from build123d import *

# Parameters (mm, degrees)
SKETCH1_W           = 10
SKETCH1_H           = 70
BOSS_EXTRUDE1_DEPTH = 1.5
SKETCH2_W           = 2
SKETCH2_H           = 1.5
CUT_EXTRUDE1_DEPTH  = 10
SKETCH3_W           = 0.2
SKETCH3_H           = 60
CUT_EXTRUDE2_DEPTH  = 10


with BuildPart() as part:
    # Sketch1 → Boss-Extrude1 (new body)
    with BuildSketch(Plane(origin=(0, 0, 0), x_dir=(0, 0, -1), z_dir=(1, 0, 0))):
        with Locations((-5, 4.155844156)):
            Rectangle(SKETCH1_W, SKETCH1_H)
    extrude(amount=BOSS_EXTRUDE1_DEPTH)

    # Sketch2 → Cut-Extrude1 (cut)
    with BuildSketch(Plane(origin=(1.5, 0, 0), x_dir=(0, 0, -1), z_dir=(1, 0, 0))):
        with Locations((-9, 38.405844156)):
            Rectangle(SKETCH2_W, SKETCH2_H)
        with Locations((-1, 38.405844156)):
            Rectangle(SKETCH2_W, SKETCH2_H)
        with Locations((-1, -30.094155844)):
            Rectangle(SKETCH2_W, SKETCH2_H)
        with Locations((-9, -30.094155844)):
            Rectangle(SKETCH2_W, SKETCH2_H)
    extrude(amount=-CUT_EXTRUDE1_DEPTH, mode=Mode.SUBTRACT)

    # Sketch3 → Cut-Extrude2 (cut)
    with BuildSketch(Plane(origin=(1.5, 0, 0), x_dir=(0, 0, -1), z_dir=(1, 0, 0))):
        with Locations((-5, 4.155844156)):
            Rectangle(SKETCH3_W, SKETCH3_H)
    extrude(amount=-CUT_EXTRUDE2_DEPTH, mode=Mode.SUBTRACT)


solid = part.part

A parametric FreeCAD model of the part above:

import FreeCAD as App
import Part
import Sketcher
from FreeCAD import Vector
Q = App.Units.Quantity

doc = App.newDocument("Part")
body = doc.addObject("PartDesign::Body", "Body")

# Sketch on YZ plane
sketch1 = doc.addObject("Sketcher::SketchObject", "Sketch")
body.addObject(sketch1)
sketch1.AttachmentSupport = (doc.YZ_Plane, [""])
sketch1.MapMode = "FlatFace"
sketch1.addGeometry([
    Part.LineSegment(Vector(39, 10, 0), Vector(-31, 10, 0)),
    Part.LineSegment(Vector(-31, 10, 0), Vector(-31, 0, 0)),
    Part.LineSegment(Vector(-31, 0, 0), Vector(39, 0, 0)),
    Part.LineSegment(Vector(39, 0, 0), Vector(39, 10, 0)),
], False)
sketch1.addConstraint([
    Sketcher.Constraint("Coincident", 0, 2, 1, 1),
    Sketcher.Constraint("Coincident", 1, 2, 2, 1),
    Sketcher.Constraint("Coincident", 2, 2, 3, 1),
    Sketcher.Constraint("Coincident", 3, 2, 0, 1),
    Sketcher.Constraint("Horizontal", 0),
    Sketcher.Constraint("Vertical", 1),
    Sketcher.Constraint("Horizontal", 2),
    Sketcher.Constraint("Vertical", 3),
    Sketcher.Constraint("PointOnObject", 1, 2, -1),
    Sketcher.Constraint("DistanceX", 0, 2, 0, 1, Q("70 mm")),
    Sketcher.Constraint("DistanceY", 1, 2, 1, 1, Q("10 mm")),
    Sketcher.Constraint("DistanceX", 0, 2, -1, 1, Q("30.844156 mm")),
])
pad1 = doc.addObject("PartDesign::Pad", "Pad")
body.addObject(pad1)
pad1.Profile = sketch1
pad1.Length = 1.5

# Sketch on YZ plane
sketch2 = doc.addObject("Sketcher::SketchObject", "Sketch001")
body.addObject(sketch2)
sketch2.AttachmentSupport = (doc.YZ_Plane, [""])
sketch2.MapMode = "FlatFace"
sketch2.AttachmentOffset = App.Placement(Vector(0, 0, 1.5), App.Rotation())
sketch2.addGeometry([
    Part.LineSegment(Vector(39.2, 10, 0), Vector(37.7, 10, 0)),  # 0
    Part.LineSegment(Vector(37.7, 10, 0), Vector(37.7, 8, 0)),  # 1
    Part.LineSegment(Vector(37.7, 8, 0), Vector(39.2, 8, 0)),  # 2
    Part.LineSegment(Vector(39.2, 8, 0), Vector(39.2, 10, 0)),  # 3
    Part.LineSegment(Vector(39.2, 2, 0), Vector(37.7, 2, 0)),  # 4
    Part.LineSegment(Vector(37.7, 2, 0), Vector(37.7, 0, 0)),  # 5
    Part.LineSegment(Vector(37.7, 0, 0), Vector(39.2, 0, 0)),  # 6
    Part.LineSegment(Vector(39.2, 0, 0), Vector(39.2, 2, 0)),  # 7
    Part.LineSegment(Vector(-29.3, 2, 0), Vector(-30.8, 2, 0)),  # 8
    Part.LineSegment(Vector(-30.8, 2, 0), Vector(-30.8, 0, 0)),  # 9
    Part.LineSegment(Vector(-30.8, 0, 0), Vector(-29.3, 0, 0)),  # 10
    Part.LineSegment(Vector(-29.3, 0, 0), Vector(-29.3, 2, 0)),  # 11
    Part.LineSegment(Vector(-29.3, 10, 0), Vector(-30.8, 10, 0)),  # 12
    Part.LineSegment(Vector(-30.8, 10, 0), Vector(-30.8, 8, 0)),  # 13
    Part.LineSegment(Vector(-30.8, 8, 0), Vector(-29.3, 8, 0)),  # 14
    Part.LineSegment(Vector(-29.3, 8, 0), Vector(-29.3, 10, 0)),  # 15
], False)
sketch2.addConstraint([
    Sketcher.Constraint("Coincident", 0, 2, 1, 1),
    Sketcher.Constraint("Coincident", 1, 2, 2, 1),
    Sketcher.Constraint("Coincident", 2, 2, 3, 1),
    Sketcher.Constraint("Coincident", 3, 2, 0, 1),
    Sketcher.Constraint("Coincident", 4, 2, 5, 1),
    Sketcher.Constraint("Coincident", 5, 2, 6, 1),
    Sketcher.Constraint("Coincident", 6, 2, 7, 1),
    Sketcher.Constraint("Coincident", 7, 2, 4, 1),
    Sketcher.Constraint("Coincident", 8, 2, 9, 1),
    Sketcher.Constraint("Coincident", 9, 2, 10, 1),
    Sketcher.Constraint("Coincident", 10, 2, 11, 1),
    Sketcher.Constraint("Coincident", 11, 2, 8, 1),
    Sketcher.Constraint("Coincident", 12, 2, 13, 1),
    Sketcher.Constraint("Coincident", 13, 2, 14, 1),
    Sketcher.Constraint("Coincident", 14, 2, 15, 1),
    Sketcher.Constraint("Coincident", 15, 2, 12, 1),
    Sketcher.Constraint("Horizontal", 0),
    Sketcher.Constraint("Vertical", 1),
    Sketcher.Constraint("Horizontal", 2),
    Sketcher.Constraint("Vertical", 3),
    Sketcher.Constraint("Horizontal", 4),
    Sketcher.Constraint("Vertical", 5),
    Sketcher.Constraint("Horizontal", 6),
    Sketcher.Constraint("Vertical", 7),
    Sketcher.Constraint("Horizontal", 8),
    Sketcher.Constraint("Vertical", 9),
    Sketcher.Constraint("Horizontal", 10),
    Sketcher.Constraint("Vertical", 11),
    Sketcher.Constraint("Horizontal", 12),
    Sketcher.Constraint("Vertical", 13),
    Sketcher.Constraint("Horizontal", 14),
    Sketcher.Constraint("Vertical", 15),
    Sketcher.Constraint("PointOnObject", 5, 2, -1),
    Sketcher.Constraint("PointOnObject", 9, 2, -1),
    Sketcher.Constraint("Horizontal", 7, 2, 8, 2),
    Sketcher.Constraint("Horizontal", 3, 2, 12, 2),
    Sketcher.Constraint("Horizontal", 2, 2, 13, 2),
    Sketcher.Constraint("Vertical", 1, 2, 4, 2),
    Sketcher.Constraint("Vertical", 3, 2, 6, 2),
    Sketcher.Constraint("Vertical", 9, 2, 12, 2),
    Sketcher.Constraint("Vertical", 11, 2, 14, 2),
    Sketcher.Constraint("Equal", 6, 8),
    Sketcher.Constraint("Equal", 3, 5),
    Sketcher.Constraint("DistanceY", 1, 2, 1, 1, Q("2 mm")),
    Sketcher.Constraint("DistanceX", 0, 2, 0, 1, Q("1.5 mm")),
    Sketcher.Constraint("DistanceY", -1, 1, 0, 2, Q("10 mm")),
    Sketcher.Constraint("DistanceX", 8, 2, 7, 2, Q("70 mm")),
    Sketcher.Constraint("DistanceX", -1, 1, 0, 2, Q("37.655844 mm")),
])
pocket1 = doc.addObject("PartDesign::Pocket", "Pocket")
body.addObject(pocket1)
pocket1.Profile = sketch2
pocket1.Length = 10

# Sketch on YZ plane
sketch3 = doc.addObject("Sketcher::SketchObject", "Sketch002")
body.addObject(sketch3)
sketch3.AttachmentSupport = (doc.YZ_Plane, [""])
sketch3.MapMode = "FlatFace"
sketch3.AttachmentOffset = App.Placement(Vector(0, 0, 1.5), App.Rotation())
sketch3.addGeometry([
    Part.LineSegment(Vector(34.16, 5.1, 0), Vector(-25.84, 5.1, 0)),
    Part.LineSegment(Vector(-25.84, 5.1, 0), Vector(-25.84, 4.9, 0)),
    Part.LineSegment(Vector(-25.84, 4.9, 0), Vector(34.16, 4.9, 0)),
    Part.LineSegment(Vector(34.16, 4.9, 0), Vector(34.16, 5.1, 0)),
], False)
sketch3.addConstraint([
    Sketcher.Constraint("Coincident", 0, 2, 1, 1),
    Sketcher.Constraint("Coincident", 1, 2, 2, 1),
    Sketcher.Constraint("Coincident", 2, 2, 3, 1),
    Sketcher.Constraint("Coincident", 3, 2, 0, 1),
    Sketcher.Constraint("Horizontal", 0),
    Sketcher.Constraint("Vertical", 1),
    Sketcher.Constraint("Horizontal", 2),
    Sketcher.Constraint("Vertical", 3),
    Sketcher.Constraint("DistanceX", 0, 2, 0, 1, Q("60 mm")),
    Sketcher.Constraint("DistanceY", 1, 2, 1, 1, Q("0.2 mm")),
    Sketcher.Constraint("DistanceY", -1, 1, 0, 2, Q("5.1 mm")),
    Sketcher.Constraint("DistanceX", 0, 2, -1, 1, Q("25.844156 mm")),
])
pocket2 = doc.addObject("PartDesign::Pocket", "Pocket001")
body.addObject(pocket2)
pocket2.Profile = sketch3
pocket2.Length = 10

doc.recompute()
